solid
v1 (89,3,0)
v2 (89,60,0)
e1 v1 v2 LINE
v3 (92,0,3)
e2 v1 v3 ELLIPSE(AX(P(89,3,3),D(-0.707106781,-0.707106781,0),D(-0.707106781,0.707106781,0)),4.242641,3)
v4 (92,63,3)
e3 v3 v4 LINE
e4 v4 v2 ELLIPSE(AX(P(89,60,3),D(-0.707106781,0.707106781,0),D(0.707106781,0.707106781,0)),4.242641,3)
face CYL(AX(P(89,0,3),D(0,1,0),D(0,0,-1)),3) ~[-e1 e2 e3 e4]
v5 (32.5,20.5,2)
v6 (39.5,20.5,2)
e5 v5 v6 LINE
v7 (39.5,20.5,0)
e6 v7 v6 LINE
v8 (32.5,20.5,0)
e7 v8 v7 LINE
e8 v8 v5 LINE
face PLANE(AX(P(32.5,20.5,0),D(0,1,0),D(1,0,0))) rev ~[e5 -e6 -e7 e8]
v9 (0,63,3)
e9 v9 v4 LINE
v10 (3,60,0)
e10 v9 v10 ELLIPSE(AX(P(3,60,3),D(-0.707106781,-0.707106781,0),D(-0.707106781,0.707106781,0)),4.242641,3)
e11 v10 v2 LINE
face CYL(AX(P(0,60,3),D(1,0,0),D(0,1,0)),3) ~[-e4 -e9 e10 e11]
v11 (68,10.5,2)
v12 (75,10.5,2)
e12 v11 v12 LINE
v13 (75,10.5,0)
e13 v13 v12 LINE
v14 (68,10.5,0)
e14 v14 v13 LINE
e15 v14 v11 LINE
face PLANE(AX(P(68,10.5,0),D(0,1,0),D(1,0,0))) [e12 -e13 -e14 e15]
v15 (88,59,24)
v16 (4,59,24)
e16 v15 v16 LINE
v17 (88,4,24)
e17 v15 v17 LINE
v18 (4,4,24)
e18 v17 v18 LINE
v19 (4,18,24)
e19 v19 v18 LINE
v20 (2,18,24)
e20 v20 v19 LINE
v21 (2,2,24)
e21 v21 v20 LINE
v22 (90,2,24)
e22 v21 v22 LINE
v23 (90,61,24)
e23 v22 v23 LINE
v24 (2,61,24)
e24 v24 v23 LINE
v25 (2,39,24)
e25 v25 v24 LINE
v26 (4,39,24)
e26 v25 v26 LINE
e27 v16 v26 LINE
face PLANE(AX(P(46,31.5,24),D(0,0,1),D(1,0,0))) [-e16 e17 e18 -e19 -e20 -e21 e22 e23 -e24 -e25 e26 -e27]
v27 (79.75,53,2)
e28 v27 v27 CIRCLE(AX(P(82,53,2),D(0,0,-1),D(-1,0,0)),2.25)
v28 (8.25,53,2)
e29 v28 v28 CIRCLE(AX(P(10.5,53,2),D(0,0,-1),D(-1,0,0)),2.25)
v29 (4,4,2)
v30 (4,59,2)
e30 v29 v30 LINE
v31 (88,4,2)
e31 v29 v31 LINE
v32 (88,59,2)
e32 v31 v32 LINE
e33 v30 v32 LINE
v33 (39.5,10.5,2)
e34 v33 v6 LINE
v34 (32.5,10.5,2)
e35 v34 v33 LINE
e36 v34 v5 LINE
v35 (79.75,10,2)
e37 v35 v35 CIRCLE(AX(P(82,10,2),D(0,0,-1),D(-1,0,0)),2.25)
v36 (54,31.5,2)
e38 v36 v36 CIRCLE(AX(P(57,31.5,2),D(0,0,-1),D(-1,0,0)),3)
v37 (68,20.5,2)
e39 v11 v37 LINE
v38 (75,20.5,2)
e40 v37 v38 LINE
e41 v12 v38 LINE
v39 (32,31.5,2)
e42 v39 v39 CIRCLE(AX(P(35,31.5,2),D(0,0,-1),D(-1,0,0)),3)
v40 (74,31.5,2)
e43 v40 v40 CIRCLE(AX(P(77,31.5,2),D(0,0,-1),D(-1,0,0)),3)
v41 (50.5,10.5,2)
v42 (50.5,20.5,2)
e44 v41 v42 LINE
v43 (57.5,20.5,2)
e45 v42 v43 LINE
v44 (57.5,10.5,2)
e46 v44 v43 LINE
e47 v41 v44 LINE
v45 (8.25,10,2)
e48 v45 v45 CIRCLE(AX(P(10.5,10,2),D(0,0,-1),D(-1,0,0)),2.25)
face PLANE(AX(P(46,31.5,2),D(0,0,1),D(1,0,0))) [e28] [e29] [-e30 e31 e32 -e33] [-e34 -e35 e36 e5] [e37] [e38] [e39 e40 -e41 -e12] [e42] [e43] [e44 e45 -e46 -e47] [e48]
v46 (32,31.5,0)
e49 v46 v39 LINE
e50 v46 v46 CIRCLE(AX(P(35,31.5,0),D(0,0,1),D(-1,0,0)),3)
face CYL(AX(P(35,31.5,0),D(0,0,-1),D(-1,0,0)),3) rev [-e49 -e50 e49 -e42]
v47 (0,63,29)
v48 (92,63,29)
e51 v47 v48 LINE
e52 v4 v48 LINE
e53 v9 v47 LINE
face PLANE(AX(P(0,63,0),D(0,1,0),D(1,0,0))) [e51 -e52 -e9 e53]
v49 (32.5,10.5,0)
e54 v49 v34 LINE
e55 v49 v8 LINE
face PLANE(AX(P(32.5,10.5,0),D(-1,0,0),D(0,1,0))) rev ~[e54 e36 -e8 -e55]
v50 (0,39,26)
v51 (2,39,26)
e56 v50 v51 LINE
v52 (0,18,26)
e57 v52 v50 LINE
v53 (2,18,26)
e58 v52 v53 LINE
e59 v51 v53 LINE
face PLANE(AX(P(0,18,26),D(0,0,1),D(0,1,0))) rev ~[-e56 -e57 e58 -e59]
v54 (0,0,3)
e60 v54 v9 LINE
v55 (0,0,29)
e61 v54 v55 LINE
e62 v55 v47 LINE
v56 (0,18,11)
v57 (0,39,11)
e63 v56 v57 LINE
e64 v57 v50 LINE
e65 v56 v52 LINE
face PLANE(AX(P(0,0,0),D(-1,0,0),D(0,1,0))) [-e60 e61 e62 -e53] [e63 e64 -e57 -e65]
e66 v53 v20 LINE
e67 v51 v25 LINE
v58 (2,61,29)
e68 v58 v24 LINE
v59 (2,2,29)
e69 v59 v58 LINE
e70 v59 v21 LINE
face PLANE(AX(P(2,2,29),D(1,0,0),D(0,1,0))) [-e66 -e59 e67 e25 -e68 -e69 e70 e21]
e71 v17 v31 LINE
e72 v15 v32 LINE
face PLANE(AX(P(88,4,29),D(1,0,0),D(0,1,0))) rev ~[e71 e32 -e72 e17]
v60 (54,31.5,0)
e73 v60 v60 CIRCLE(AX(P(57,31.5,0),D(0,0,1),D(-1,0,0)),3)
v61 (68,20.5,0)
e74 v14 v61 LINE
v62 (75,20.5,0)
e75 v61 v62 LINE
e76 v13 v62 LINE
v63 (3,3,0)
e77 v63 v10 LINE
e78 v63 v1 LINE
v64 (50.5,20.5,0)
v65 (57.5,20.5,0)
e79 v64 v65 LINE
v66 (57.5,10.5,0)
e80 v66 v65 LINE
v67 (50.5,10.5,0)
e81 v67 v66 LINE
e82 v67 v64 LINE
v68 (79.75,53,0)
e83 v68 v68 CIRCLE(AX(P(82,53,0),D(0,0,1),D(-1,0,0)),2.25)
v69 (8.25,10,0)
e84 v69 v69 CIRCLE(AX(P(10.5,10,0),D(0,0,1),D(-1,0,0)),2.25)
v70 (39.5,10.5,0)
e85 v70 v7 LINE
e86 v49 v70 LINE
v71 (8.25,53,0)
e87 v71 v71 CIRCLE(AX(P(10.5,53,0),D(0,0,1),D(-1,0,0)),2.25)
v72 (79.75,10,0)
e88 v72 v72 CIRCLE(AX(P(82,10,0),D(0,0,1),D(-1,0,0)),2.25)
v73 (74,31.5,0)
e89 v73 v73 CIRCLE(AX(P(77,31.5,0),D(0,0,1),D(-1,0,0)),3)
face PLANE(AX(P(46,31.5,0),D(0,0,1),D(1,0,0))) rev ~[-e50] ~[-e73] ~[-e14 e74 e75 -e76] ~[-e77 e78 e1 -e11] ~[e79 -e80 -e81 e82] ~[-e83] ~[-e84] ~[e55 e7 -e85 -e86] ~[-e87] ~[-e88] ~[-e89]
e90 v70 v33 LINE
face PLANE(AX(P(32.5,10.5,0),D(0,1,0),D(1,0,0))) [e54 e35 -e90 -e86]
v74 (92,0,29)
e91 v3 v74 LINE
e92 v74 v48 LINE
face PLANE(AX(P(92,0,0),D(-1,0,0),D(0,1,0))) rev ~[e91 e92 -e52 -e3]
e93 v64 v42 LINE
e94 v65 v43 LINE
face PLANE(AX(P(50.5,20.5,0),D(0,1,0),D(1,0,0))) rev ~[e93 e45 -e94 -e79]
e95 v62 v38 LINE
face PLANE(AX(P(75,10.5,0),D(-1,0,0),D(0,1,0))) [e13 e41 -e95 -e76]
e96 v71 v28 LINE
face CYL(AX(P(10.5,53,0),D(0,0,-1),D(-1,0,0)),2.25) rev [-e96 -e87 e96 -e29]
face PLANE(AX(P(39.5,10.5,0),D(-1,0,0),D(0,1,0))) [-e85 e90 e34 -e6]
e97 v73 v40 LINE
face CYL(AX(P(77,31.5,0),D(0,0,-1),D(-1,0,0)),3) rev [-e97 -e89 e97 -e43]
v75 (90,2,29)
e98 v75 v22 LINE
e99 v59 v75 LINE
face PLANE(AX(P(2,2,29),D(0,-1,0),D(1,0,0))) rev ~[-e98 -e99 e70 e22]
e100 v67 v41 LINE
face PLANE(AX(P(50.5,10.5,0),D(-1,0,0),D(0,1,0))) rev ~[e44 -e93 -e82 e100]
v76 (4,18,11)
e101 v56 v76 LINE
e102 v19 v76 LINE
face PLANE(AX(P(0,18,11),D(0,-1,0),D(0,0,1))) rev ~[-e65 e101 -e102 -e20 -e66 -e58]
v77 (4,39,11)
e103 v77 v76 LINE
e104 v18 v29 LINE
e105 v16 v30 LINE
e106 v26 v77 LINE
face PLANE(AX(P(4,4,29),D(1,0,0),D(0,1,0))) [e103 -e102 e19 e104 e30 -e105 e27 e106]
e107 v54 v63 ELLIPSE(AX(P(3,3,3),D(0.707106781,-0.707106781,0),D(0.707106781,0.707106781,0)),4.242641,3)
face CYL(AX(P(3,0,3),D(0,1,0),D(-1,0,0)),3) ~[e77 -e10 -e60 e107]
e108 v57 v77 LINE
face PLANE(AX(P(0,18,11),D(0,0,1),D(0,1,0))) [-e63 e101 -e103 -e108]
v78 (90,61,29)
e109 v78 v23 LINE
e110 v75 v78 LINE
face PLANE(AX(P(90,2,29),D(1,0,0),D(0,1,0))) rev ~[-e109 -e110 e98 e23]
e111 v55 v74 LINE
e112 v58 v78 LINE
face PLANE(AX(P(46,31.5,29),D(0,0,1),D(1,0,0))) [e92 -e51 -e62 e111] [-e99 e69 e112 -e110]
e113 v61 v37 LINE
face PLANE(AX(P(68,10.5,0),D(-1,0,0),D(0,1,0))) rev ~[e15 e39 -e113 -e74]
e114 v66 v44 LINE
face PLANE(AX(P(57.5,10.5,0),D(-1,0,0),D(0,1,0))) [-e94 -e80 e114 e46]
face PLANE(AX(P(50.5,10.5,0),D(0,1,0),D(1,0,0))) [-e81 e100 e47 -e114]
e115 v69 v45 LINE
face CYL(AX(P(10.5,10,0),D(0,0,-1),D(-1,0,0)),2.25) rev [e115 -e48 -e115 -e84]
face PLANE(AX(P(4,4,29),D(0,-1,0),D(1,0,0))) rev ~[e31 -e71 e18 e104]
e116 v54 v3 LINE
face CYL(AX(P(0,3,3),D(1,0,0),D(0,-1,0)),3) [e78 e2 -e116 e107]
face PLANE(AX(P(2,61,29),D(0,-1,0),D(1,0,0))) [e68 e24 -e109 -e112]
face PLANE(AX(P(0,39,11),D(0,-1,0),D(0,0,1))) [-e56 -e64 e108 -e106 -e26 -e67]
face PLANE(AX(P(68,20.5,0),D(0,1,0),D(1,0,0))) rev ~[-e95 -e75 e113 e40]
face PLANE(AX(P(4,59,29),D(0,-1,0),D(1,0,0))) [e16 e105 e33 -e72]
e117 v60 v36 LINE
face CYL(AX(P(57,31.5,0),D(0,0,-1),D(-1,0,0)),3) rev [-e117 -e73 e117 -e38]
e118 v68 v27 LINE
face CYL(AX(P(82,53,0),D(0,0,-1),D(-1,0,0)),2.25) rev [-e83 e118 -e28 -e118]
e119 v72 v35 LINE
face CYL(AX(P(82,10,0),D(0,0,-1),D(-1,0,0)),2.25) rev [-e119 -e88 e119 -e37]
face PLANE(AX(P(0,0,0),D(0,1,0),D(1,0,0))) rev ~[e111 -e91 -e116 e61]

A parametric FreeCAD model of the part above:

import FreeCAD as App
import Part
import Sketcher
from FreeCAD import Vector
Q = App.Units.Quantity


def edges_at(feature, points):
    """Names of the edges that pass closest to the given points."""
    edges = feature.Shape.Edges
    near = lambda p: min(range(len(edges)), key=lambda i: edges[i].distToShape(Part.Vertex(*p))[0])
    return sorted({f"Edge{near(p) + 1}" for p in points})

doc = App.newDocument("Part")
params = doc.addObject("Spreadsheet::Sheet", "Params")
for row, (alias, value) in enumerate([
    ("sketch1_diameter", "6 mm"),
    ("sketch1_diameter2", "4.5 mm"),
    ("sketch1_width", "92 mm"),
    ("sketch1_width2", "7 mm"),
    ("sketch1_height", "63 mm"),
    ("pad1_length", "29 mm"),
    ("sketch2_width", "84 mm"),
    ("sketch2_height", "55 mm"),
    ("pocket1_length", "27 mm"),
    ("sketch3_width", "88 mm"),
    ("sketch3_height", "59 mm"),
    ("pocket2_length", "5 mm"),
    ("fillet_radius", "3 mm"),
    ("sketch4_width", "21 mm"),
    ("sketch4_height", "15 mm"),
    ("pocket3_length", "5 mm"),
], start=1):
    params.set(f"A{row}", alias)
    params.set(f"B{row}", "=" + value)
    params.setAlias(f"B{row}", alias)

body = doc.addObject("PartDesign::Body", "Body")

# Sketch on XY plane
sketch1 = body.newObject("Sketcher::SketchObject", "Sketch")
sketch1.AttachmentSupport = (doc.getObject("XY_Plane"), [""])
sketch1.MapMode = "FlatFace"
sketch1.addGeometry([
    Part.LineSegment(Vector(0, 63, 0), Vector(0, 0, 0)),  # 0
    Part.LineSegment(Vector(0, 0, 0), Vector(92, 0, 0)),  # 1
    Part.LineSegment(Vector(92, 0, 0), Vector(92, 63, 0)),  # 2
    Part.LineSegment(Vector(92, 63, 0), Vector(0, 63, 0)),  # 3
    Part.Circle(Vector(10.5, 10, 0), Vector(0, 0, 1), 2.2),  # 4
    Part.LineSegment(Vector(39.5, 10.5, 0), Vector(32.5, 10.5, 0)),  # 5
    Part.LineSegment(Vector(32.5, 10.5, 0), Vector(32.5, 20.5, 0)),  # 6
    Part.LineSegment(Vector(32.5, 20.5, 0), Vector(39.5, 20.5, 0)),  # 7
    Part.LineSegment(Vector(39.5, 20.5, 0), Vector(39.5, 10.5, 0)),  # 8
    Part.LineSegment(Vector(57.5, 10.5, 0), Vector(50.5, 10.5, 0)),  # 9
    Part.LineSegment(Vector(50.5, 10.5, 0), Vector(50.5, 20.5, 0)),  # 10
    Part.LineSegment(Vector(50.5, 20.5, 0), Vector(57.5, 20.5, 0)),  # 11
    Part.LineSegment(Vector(57.5, 20.5, 0), Vector(57.5, 10.5, 0)),  # 12
    Part.Circle(Vector(82, 10, 0), Vector(0, 0, 1), 2.2),  # 13
    Part.LineSegment(Vector(75, 10.5, 0), Vector(68, 10.5, 0)),  # 14
    Part.LineSegment(Vector(68, 10.5, 0), Vector(68, 20.5, 0)),  # 15
    Part.LineSegment(Vector(68, 20.5, 0), Vector(75, 20.5, 0)),  # 16
    Part.LineSegment(Vector(75, 20.5, 0), Vector(75, 10.5, 0)),  # 17
    Part.Circle(Vector(35, 31.5, 0), Vector(0, 0, 1), 3),  # 18
    Part.Circle(Vector(10.5, 53, 0), Vector(0, 0, 1), 2.2),  # 19
    Part.Circle(Vector(57, 31.5, 0), Vector(0, 0, 1), 3),  # 20
    Part.Circle(Vector(77, 31.5, 0), Vector(0, 0, 1), 3),  # 21
    Part.Circle(Vector(82, 53, 0), Vector(0, 0, 1), 2.2),  # 22
], False)
sketch1.addConstraint([
    Sketcher.Constraint("Coincident", 0, 2, 1, 1),
    Sketcher.Constraint("Coincident", 1, 2, 2, 1),
    Sketcher.Constraint("Coincident", 2, 2, 3, 1),
    Sketcher.Constraint("Coincident", 3, 2, 0, 1),
    Sketcher.Constraint("Coincident", 5, 2, 6, 1),
    Sketcher.Constraint("Coincident", 6, 2, 7, 1),
    Sketcher.Constraint("Coincident", 7, 2, 8, 1),
    Sketcher.Constraint("Coincident", 8, 2, 5, 1),
    Sketcher.Constraint("Coincident", 9, 2, 10, 1),
    Sketcher.Constraint("Coincident", 10, 2, 11, 1),
    Sketcher.Constraint("Coincident", 11, 2, 12, 1),
    Sketcher.Constraint("Coincident", 12, 2, 9, 1),
    Sketcher.Constraint("Coincident", 14, 2, 15, 1),
    Sketcher.Constraint("Coincident", 15, 2, 16, 1),
    Sketcher.Constraint("Coincident", 16, 2, 17, 1),
    Sketcher.Constraint("Coincident", 17, 2, 14, 1),
    Sketcher.Constraint("Vertical", 0),
    Sketcher.Constraint("Horizontal", 1),
    Sketcher.Constraint("Vertical", 2),
    Sketcher.Constraint("Horizontal", 3),
    Sketcher.Constraint("Horizontal", 5),
    Sketcher.Constraint("Vertical", 6),
    Sketcher.Constraint("Horizontal", 7),
    Sketcher.Constraint("Vertical", 8),
    Sketcher.Constraint("Horizontal", 9),
    Sketcher.Constraint("Vertical", 10),
    Sketcher.Constraint("Horizontal", 11),
    Sketcher.Constraint("Vertical", 12),
    Sketcher.Constraint("Horizontal", 14),
    Sketcher.Constraint("Vertical", 15),
    Sketcher.Constraint("Horizontal", 16),
    Sketcher.Constraint("Vertical", 17),
    Sketcher.Constraint("Coincident", 0, 2, -1, 1),
    Sketcher.Constraint("Equal", 4, 13),
    Sketcher.Constraint("Equal", 13, 19),
    Sketcher.Constraint("Equal", 18, 20),
    Sketcher.Constraint("Equal", 20, 21),
    Sketcher.Constraint("Equal", 19, 22),
    Sketcher.Constraint("Horizontal", 4, 3, 13, 3),
    Sketcher.Constraint("Horizontal", 18, 3, 20, 3),
    Sketcher.Constraint("Horizontal", 20, 3, 21, 3),
    Sketcher.Constraint("Horizontal", 19, 3, 22, 3),
    Sketcher.Constraint("Horizontal", 8, 2, 9, 2),
    Sketcher.Constraint("Horizontal", 7, 2, 10, 2),
    Sketcher.Constraint("Horizontal", 12, 2, 14, 2),
    Sketcher.Constraint("Horizontal", 11, 2, 15, 2),
    Sketcher.Constraint("Vertical", 4, 3, 19, 3),
    Sketcher.Constraint("Vertical", 13, 3, 22, 3),
    Sketcher.Constraint("Equal", 7, 9),
    Sketcher.Constraint("Equal", 11, 14),
    Sketcher.Constraint("Diameter", 18, Q("6 mm")),
    Sketcher.Constraint("Diameter", 4, Q("4.5 mm")),
    Sketcher.Constraint("DistanceX", 1, 1, 1, 2, Q("92 mm")),
    Sketcher.Constraint("DistanceX", 5, 2, 5, 1, Q("7 mm")),
    Sketcher.Constraint("DistanceY", 0, 2, 0, 1, Q("63 mm")),
    Sketcher.Constraint("DistanceY", 6, 1, 6, 2, Q("10 mm")),
    Sketcher.Constraint("DistanceY", -1, 1, 4, 3, Q("10 mm")),
    Sketcher.Constraint("DistanceX", -1, 1, 13, 3, Q("82 mm")),
    Sketcher.Constraint("DistanceX", -1, 1, 18, 3, Q("35 mm")),
    Sketcher.Constraint("DistanceY", -1, 1, 19, 3, Q("53 mm")),
    Sketcher.Constraint("DistanceX", -1, 1, 20, 3, Q("57 mm")),
    Sketcher.Constraint("DistanceX", -1, 1, 21, 3, Q("77 mm")),
    Sketcher.Constraint("DistanceX", -1, 1, 14, 2, Q("68 mm")),
    Sketcher.Constraint("DistanceY", 5, 2, 18, 3, Q("21 mm")),
    Sketcher.Constraint("DistanceX", 4, 3, 5, 2, Q("22 mm")),
    Sketcher.Constraint("DistanceX", 8, 2, 9, 2, Q("11 mm")),
    Sketcher.Constraint("DistanceX", -1, 1, 4, 3, Q("10.5 mm")),
    Sketcher.Constraint("DistanceY", -1, 1, 18, 3, Q("31.5 mm")),
])
sketch1.setExpression("Constraints[50]", "Params.sketch1_diameter")
sketch1.setExpression("Constraints[51]", "Params.sketch1_diameter2")
sketch1.setExpression("Constraints[52]", "Params.sketch1_width")
sketch1.setExpression("Constraints[53]", "Params.sketch1_width2")
sketch1.setExpression("Constraints[54]", "Params.sketch1_height")
pad1 = body.newObject("PartDesign::Pad", "Pad")
pad1.Profile = sketch1
pad1.setExpression("Length", "Params.pad1_length")

# Sketch on XY plane
sketch2 = body.newObject("Sketcher::SketchObject", "Sketch001")
sketch2.AttachmentSupport = (doc.getObject("XY_Plane"), [""])
sketch2.MapMode = "FlatFace"
sketch2.AttachmentOffset = App.Placement(Vector(0, 0, 29), App.Rotation())
sketch2.addGeometry([
    Part.LineSegment(Vector(4, 59, 0), Vector(4, 4, 0)),
    Part.LineSegment(Vector(4, 4, 0), Vector(88, 4, 0)),
    Part.LineSegment(Vector(88, 4, 0), Vector(88, 59, 0)),
    Part.LineSegment(Vector(88, 59, 0), Vector(4, 59, 0)),
], False)
sketch2.addConstraint([
    Sketcher.Constraint("Coincident", 0, 2, 1, 1),
    Sketcher.Constraint("Coincident", 1, 2, 2, 1),
    Sketcher.Constraint("Coincident", 2, 2, 3, 1),
    Sketcher.Constraint("Coincident", 3, 2, 0, 1),
    Sketcher.Constraint("Vertical", 0),
    Sketcher.Constraint("Horizontal", 1),
    Sketcher.Constraint("Vertical", 2),
    Sketcher.Constraint("Horizontal", 3),
    Sketcher.Constraint("DistanceX", 1, 1, 1, 2, Q("84 mm")),
    Sketcher.Constraint("DistanceY", 0, 2, 0, 1, Q("55 mm")),
    Sketcher.Constraint("DistanceX", -1, 1, 0, 2, Q("4 mm")),
    Sketcher.Constraint("DistanceY", -1, 1, 0, 2, Q("4 mm")),
])
sketch2.setExpression("Constraints[8]", "Params.sketch2_width")
sketch2.setExpression("Constraints[9]", "Params.sketch2_height")
pocket1 = body.newObject("PartDesign::Pocket", "Pocket")
pocket1.Profile = sketch2
pocket1.setExpression("Length", "Params.pocket1_length")

# Sketch on XY plane
sketch3 = body.newObject("Sketcher::SketchObject", "Sketch002")
sketch3.AttachmentSupport = (doc.getObject("XY_Plane"), [""])
sketch3.MapMode = "FlatFace"
sketch3.AttachmentOffset = App.Placement(Vector(0, 0, 29), App.Rotation())
sketch3.addGeometry([
    Part.LineSegment(Vector(2, 61, 0), Vector(2, 2, 0)),
    Part.LineSegment(Vector(2, 2, 0), Vector(90, 2, 0)),
    Part.LineSegment(Vector(90, 2, 0), Vector(90, 61, 0)),
    Part.LineSegment(Vector(90, 61, 0), Vector(2, 61, 0)),
], False)
sketch3.addConstraint([
    Sketcher.Constraint("Coincident", 0, 2, 1, 1),
    Sketcher.Constraint("Coincident", 1, 2, 2, 1),
    Sketcher.Constraint("Coincident", 2, 2, 3, 1),
    Sketcher.Constraint("Coincident", 3, 2, 0, 1),
    Sketcher.Constraint("Vertical", 0),
    Sketcher.Constraint("Horizontal", 1),
    Sketcher.Constraint("Vertical", 2),
    Sketcher.Constraint("Horizontal", 3),
    Sketcher.Constraint("DistanceX", 1, 1, 1, 2, Q("88 mm")),
    Sketcher.Constraint("DistanceY", 0, 2, 0, 1, Q("59 mm")),
    Sketcher.Constraint("DistanceX", -1, 1, 0, 2, Q("2 mm")),
    Sketcher.Constraint("DistanceY", -1, 1, 0, 2, Q("2 mm")),
])
sketch3.setExpression("Constraints[8]", "Params.sketch3_width")
sketch3.setExpression("Constraints[9]", "Params.sketch3_height")
pocket2 = body.newObject("PartDesign::Pocket", "Pocket001")
pocket2.Profile = sketch3
pocket2.setExpression("Length", "Params.pocket2_length")
doc.recompute()

fillet = body.newObject("PartDesign::Fillet", "Fillet")
fillet.Base = (pocket2, edges_at(pocket2, [
    (0, 31.5, 0),
    (46, 63, 0),
    (92, 31.5, 0),
    (46, 0, 0),
]))
fillet.setExpression("Radius", "Params.fillet_radius")

# Sketch on YZ plane
sketch4 = body.newObject("Sketcher::SketchObject", "Sketch003")
sketch4.AttachmentSupport = (doc.getObject("YZ_Plane"), [""])
sketch4.MapMode = "FlatFace"
sketch4.addGeometry([
    Part.LineSegment(Vector(39, 11, 0), Vector(18, 11, 0)),
    Part.LineSegment(Vector(18, 11, 0), Vector(18, 26, 0)),
    Part.LineSegment(Vector(18, 26, 0), Vector(39, 26, 0)),
    Part.LineSegment(Vector(39, 26, 0), Vector(39, 11, 0)),
], False)
sketch4.addConstraint([
    Sketcher.Constraint("Coincident", 0, 2, 1, 1),
    Sketcher.Constraint("Coincident", 1, 2, 2, 1),
    Sketcher.Constraint("Coincident", 2, 2, 3, 1),
    Sketcher.Constraint("Coincident", 3, 2, 0, 1),
    Sketcher.Constraint("Horizontal", 0),
    Sketcher.Constraint("Vertical", 1),
    Sketcher.Constraint("Horizontal", 2),
    Sketcher.Constraint("Vertical", 3),
    Sketcher.Constraint("DistanceX", 0, 2, 0, 1, Q("21 mm")),
    Sketcher.Constraint("DistanceY", 1, 1, 1, 2, Q("15 mm")),
    Sketcher.Constraint("DistanceX", -1, 1, 0, 2, Q("18 mm")),
    Sketcher.Constraint("DistanceY", -1, 1, 0, 2, Q("11 mm")),
])
sketch4.setExpression("Constraints[8]", "Params.sketch4_width")
sketch4.setExpression("Constraints[9]", "Params.sketch4_height")
pocket3 = body.newObject("PartDesign::Pocket", "Pocket002")
pocket3.Profile = sketch4
pocket3.setExpression("Length", "Params.pocket3_length")
pocket3.Reversed = True

doc.recompute()
